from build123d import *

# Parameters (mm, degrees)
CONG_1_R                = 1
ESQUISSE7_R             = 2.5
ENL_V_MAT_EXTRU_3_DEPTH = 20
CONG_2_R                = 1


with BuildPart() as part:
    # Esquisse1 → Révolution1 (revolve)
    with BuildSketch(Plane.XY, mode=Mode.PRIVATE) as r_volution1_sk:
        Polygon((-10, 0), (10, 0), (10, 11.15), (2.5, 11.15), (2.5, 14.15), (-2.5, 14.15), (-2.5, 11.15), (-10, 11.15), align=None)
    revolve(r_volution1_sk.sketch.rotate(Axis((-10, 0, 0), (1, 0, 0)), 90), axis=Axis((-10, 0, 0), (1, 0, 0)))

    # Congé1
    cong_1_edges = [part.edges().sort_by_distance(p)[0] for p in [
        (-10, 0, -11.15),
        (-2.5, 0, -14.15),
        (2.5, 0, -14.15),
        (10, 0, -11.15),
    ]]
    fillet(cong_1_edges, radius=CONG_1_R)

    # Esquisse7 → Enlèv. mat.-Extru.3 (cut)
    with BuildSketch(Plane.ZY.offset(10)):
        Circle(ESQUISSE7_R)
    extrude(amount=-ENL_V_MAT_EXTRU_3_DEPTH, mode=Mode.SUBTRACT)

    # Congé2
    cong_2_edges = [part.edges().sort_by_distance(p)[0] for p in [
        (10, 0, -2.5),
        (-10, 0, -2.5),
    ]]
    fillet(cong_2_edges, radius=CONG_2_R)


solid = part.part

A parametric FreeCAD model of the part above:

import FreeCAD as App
import Part
import Sketcher

V = App.Vector
Q = App.Units.Quantity


def edges_at(feature, points):
    """Names of the edges that pass closest to the given points."""
    edges = feature.Shape.Edges
    near = lambda p: min(range(len(edges)), key=lambda i: edges[i].distToShape(Part.Vertex(*p))[0])
    return sorted({f"Edge{near(p) + 1}" for p in points})

doc = App.newDocument("Part")
body = doc.addObject("PartDesign::Body", "Body")

sketch1 = doc.addObject("Sketcher::SketchObject", "Sketch")
body.addObject(sketch1)
sketch1.AttachmentSupport = (doc.XY_Plane, [""])
sketch1.MapMode = "FlatFace"
sketch1.addGeometry([
    Part.LineSegment(V(-10, 0, 0), V(10, 0, 0)),
    Part.LineSegment(V(10, 0, 0), V(10, 11.2, 0)),
    Part.LineSegment(V(10, 11.2, 0), V(2.5, 11.2, 0)),
    Part.LineSegment(V(2.5, 11.2, 0), V(2.5, 14.2, 0)),
    Part.LineSegment(V(2.5, 14.2, 0), V(-2.5, 14.2, 0)),
    Part.LineSegment(V(-2.5, 14.2, 0), V(-2.5, 11.2, 0)),
    Part.LineSegment(V(-2.5, 11.2, 0), V(-10, 11.2, 0)),
    Part.LineSegment(V(-10, 11.2, 0), V(-10, 0, 0)),
], False)
sketch1.addConstraint([
    Sketcher.Constraint("Coincident", 0, 2, 1, 1),
    Sketcher.Constraint("Coincident", 1, 2, 2, 1),
    Sketcher.Constraint("Coincident", 2, 2, 3, 1),
    Sketcher.Constraint("Coincident", 3, 2, 4, 1),
    Sketcher.Constraint("Coincident", 4, 2, 5, 1),
    Sketcher.Constraint("Coincident", 5, 2, 6, 1),
    Sketcher.Constraint("Coincident", 6, 2, 7, 1),
    Sketcher.Constraint("Coincident", 7, 2, 0, 1),
    Sketcher.Constraint("Horizontal", 0),
    Sketcher.Constraint("Vertical", 1),
    Sketcher.Constraint("Horizontal", 2),
    Sketcher.Constraint("Vertical", 3),
    Sketcher.Constraint("Horizontal", 4),
    Sketcher.Constraint("Vertical", 5),
    Sketcher.Constraint("Horizontal", 6),
    Sketcher.Constraint("Vertical", 7),
    Sketcher.Constraint("Symmetric", 0, 2, 7, 2, -1, 1),
    Sketcher.Constraint("Symmetric", 2, 2, 5, 2, -2),
    Sketcher.Constraint("DistanceX", 0, 1, 0, 2, Q("20 mm")),
    Sketcher.Constraint("DistanceX", 4, 2, 4, 1, Q("5 mm")),
    Sketcher.Constraint("DistanceY", 3, 1, 3, 2, Q("3 mm")),
    Sketcher.Constraint("DistanceY", 1, 1, 1, 2, Q("11.15 mm")),
])
revolution = doc.addObject("PartDesign::Revolution", "Revolution")
body.addObject(revolution)
revolution.Profile = sketch1
revolution.ReferenceAxis = (sketch1, ["H_Axis"])
revolution.Angle = 360
doc.recompute()

fillet = doc.addObject("PartDesign::Fillet", "Fillet")
body.addObject(fillet)
fillet.Base = (revolution, edges_at(revolution, [
    (-10, 0, -11.15),
    (-2.5, 0, -14.15),
    (2.5, 0, -14.15),
    (10, 0, -11.15),
]))
fillet.Radius = 1

sketch2 = doc.addObject("Sketcher::SketchObject", "Sketch001")
body.addObject(sketch2)
sketch2.AttachmentSupport = (doc.YZ_Plane, [""])
sketch2.MapMode = "FlatFace"
sketch2.AttachmentOffset = App.Placement(V(0, 0, -10), App.Rotation())
sketch2.addGeometry(Part.Circle(V(0, 0, 0), V(0, 0, 1), 2.5), False)
sketch2.addConstraint([
    Sketcher.Constraint("Coincident", 0, 3, -1, 1),
    Sketcher.Constraint("Diameter", 0, Q("5 mm")),
])
pocket1 = doc.addObject("PartDesign::Pocket", "Pocket")
body.addObject(pocket1)
pocket1.Profile = sketch2
pocket1.Length = 20
pocket1.Reversed = True
doc.recompute()

fillet2 = doc.addObject("PartDesign::Fillet", "Fillet001")
body.addObject(fillet2)
fillet2.Base = (pocket1, edges_at(pocket1, [(10, 0, -2.5), (-10, 0, -2.5)]))
fillet2.Radius = 1

doc.recompute()
